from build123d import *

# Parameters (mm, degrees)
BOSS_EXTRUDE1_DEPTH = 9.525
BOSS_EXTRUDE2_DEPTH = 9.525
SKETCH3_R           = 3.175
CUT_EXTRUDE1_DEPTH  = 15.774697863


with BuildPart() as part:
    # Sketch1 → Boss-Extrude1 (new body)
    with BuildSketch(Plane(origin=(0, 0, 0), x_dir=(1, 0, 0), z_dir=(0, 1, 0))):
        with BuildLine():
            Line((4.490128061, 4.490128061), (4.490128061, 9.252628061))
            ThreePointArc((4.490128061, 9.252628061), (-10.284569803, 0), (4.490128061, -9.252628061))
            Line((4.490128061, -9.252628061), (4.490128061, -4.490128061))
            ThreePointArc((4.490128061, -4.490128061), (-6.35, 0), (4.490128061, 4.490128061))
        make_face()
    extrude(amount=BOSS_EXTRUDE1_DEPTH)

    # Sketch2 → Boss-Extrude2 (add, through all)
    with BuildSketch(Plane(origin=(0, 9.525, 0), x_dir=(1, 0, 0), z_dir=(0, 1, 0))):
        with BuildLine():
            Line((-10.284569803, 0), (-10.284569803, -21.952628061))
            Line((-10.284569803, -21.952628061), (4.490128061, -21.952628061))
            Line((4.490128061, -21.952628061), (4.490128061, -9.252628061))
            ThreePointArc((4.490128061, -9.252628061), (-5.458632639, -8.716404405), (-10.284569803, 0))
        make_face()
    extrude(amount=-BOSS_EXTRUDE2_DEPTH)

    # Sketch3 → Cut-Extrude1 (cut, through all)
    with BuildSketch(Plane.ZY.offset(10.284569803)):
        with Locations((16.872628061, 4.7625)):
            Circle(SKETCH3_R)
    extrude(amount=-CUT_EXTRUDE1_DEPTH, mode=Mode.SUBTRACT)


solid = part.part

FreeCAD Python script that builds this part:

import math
import FreeCAD as App
import Part
import Sketcher
from FreeCAD import Vector
Q = App.Units.Quantity

doc = App.newDocument("Part")
body = doc.addObject("PartDesign::Body", "Body")

sketch1 = body.newObject("Sketcher::SketchObject", "Sketch")
sketch1.AttachmentSupport = (doc.getObject("XZ_Plane"), [""])
sketch1.MapMode = "FlatFace"
sketch1.addGeometry([
    Part.LineSegment(Vector(4.490128, -4.490128, 0), Vector(4.490128, -9.252628, 0)),
    Part.ArcOfCircle(Part.Circle(Vector(0, 0, 0), Vector(0, 0, 1), 10.28457), math.radians(64.113565), math.radians(295.886435)),
    Part.LineSegment(Vector(4.490128, 9.252628, 0), Vector(4.490128, 4.490128, 0)),
    Part.ArcOfCircle(Part.Circle(Vector(0, 0, 0), Vector(0, 0, 1), 6.35), math.radians(45), math.radians(315)),
], False)
sketch1.addConstraint([
    Sketcher.Constraint("Coincident", 0, 2, 1, 2),
    Sketcher.Constraint("Coincident", 1, 1, 2, 1),
    Sketcher.Constraint("Coincident", 2, 2, 3, 1),
    Sketcher.Constraint("Coincident", 3, 2, 0, 1),
    Sketcher.Constraint("Vertical", 0),
    Sketcher.Constraint("Vertical", 2),
    Sketcher.Constraint("Coincident", 1, 3, -1, 1),
    Sketcher.Constraint("Coincident", 3, 3, -1, 1),
    Sketcher.Constraint("Vertical", 0, 2, 1, 1),
    Sketcher.Constraint("Radius", 3, Q("0.25 in")),
    Sketcher.Constraint("DistanceY", 0, 2, 0, 1, Q("0.1875 in")),
    Sketcher.Constraint("Radius", 1, 10.28457),
])
pad1 = body.newObject("PartDesign::Pad", "Pad")
pad1.Profile = sketch1
pad1.Length = Q("0.375 in")
pad1.Reversed = True

sketch2 = body.newObject("Sketcher::SketchObject", "Sketch001")
sketch2.AttachmentSupport = (doc.getObject("XZ_Plane"), [""])
sketch2.MapMode = "FlatFace"
sketch2.AttachmentOffset = App.Placement(Vector(0, 0, -0.375 * 25.4), App.Rotation())
sketch2.addGeometry([
    Part.LineSegment(Vector(-10.28457, 0, 0), Vector(-10.28457, 21.952628, 0)),
    Part.LineSegment(Vector(-10.28457, 21.952628, 0), Vector(4.490128, 21.952628, 0)),
    Part.LineSegment(Vector(4.490128, 21.952628, 0), Vector(4.490128, 9.252628, 0)),
    Part.ArcOfCircle(Part.Circle(Vector(0, 0, 0), Vector(0, 0, 1), 10.28457), math.radians(64.113565), math.radians(180)),
], False)
sketch2.addConstraint([
    Sketcher.Constraint("Coincident", 0, 2, 1, 1),
    Sketcher.Constraint("Coincident", 1, 2, 2, 1),
    Sketcher.Constraint("Coincident", 2, 2, 3, 1),
    Sketcher.Constraint("Tangent", 3, 2, 0, 1),
    Sketcher.Constraint("Vertical", 0),
    Sketcher.Constraint("Horizontal", 1),
    Sketcher.Constraint("Vertical", 2),
    Sketcher.Constraint("Coincident", 3, 3, -1, 1),
    Sketcher.Constraint("DistanceY", 2, 2, 2, 1, Q("0.5 in")),
    Sketcher.Constraint("Radius", 3, 10.28457),
    Sketcher.Constraint("DistanceY", 0, 1, 0, 2, 21.952628),
])
pad2 = body.newObject("PartDesign::Pad", "Pad001")
pad2.Profile = sketch2
pad2.Length = Q("0.375 in")

sketch3 = body.newObject("Sketcher::SketchObject", "Sketch002")
sketch3.AttachmentSupport = (doc.getObject("YZ_Plane"), [""])
sketch3.MapMode = "FlatFace"
sketch3.AttachmentOffset = App.Placement(Vector(0, 0, -10.28457), App.Rotation())
sketch3.addGeometry(Part.Circle(Vector(4.7625, 16.872628, 0), Vector(0, 0, 1), 3.175), False)
sketch3.addConstraint([
    Sketcher.Constraint("Diameter", 0, Q("0.25 in")),
    Sketcher.Constraint("DistanceX", -1, 1, 0, 3, Q("0.1875 in")),
    Sketcher.Constraint("DistanceY", -1, 1, 0, 3, 16.872628),
])
pocket1 = body.newObject("PartDesign::Pocket", "Pocket")
pocket1.Profile = sketch3
pocket1.Type = "ThroughAll"
pocket1.Reversed = True

doc.recompute()
